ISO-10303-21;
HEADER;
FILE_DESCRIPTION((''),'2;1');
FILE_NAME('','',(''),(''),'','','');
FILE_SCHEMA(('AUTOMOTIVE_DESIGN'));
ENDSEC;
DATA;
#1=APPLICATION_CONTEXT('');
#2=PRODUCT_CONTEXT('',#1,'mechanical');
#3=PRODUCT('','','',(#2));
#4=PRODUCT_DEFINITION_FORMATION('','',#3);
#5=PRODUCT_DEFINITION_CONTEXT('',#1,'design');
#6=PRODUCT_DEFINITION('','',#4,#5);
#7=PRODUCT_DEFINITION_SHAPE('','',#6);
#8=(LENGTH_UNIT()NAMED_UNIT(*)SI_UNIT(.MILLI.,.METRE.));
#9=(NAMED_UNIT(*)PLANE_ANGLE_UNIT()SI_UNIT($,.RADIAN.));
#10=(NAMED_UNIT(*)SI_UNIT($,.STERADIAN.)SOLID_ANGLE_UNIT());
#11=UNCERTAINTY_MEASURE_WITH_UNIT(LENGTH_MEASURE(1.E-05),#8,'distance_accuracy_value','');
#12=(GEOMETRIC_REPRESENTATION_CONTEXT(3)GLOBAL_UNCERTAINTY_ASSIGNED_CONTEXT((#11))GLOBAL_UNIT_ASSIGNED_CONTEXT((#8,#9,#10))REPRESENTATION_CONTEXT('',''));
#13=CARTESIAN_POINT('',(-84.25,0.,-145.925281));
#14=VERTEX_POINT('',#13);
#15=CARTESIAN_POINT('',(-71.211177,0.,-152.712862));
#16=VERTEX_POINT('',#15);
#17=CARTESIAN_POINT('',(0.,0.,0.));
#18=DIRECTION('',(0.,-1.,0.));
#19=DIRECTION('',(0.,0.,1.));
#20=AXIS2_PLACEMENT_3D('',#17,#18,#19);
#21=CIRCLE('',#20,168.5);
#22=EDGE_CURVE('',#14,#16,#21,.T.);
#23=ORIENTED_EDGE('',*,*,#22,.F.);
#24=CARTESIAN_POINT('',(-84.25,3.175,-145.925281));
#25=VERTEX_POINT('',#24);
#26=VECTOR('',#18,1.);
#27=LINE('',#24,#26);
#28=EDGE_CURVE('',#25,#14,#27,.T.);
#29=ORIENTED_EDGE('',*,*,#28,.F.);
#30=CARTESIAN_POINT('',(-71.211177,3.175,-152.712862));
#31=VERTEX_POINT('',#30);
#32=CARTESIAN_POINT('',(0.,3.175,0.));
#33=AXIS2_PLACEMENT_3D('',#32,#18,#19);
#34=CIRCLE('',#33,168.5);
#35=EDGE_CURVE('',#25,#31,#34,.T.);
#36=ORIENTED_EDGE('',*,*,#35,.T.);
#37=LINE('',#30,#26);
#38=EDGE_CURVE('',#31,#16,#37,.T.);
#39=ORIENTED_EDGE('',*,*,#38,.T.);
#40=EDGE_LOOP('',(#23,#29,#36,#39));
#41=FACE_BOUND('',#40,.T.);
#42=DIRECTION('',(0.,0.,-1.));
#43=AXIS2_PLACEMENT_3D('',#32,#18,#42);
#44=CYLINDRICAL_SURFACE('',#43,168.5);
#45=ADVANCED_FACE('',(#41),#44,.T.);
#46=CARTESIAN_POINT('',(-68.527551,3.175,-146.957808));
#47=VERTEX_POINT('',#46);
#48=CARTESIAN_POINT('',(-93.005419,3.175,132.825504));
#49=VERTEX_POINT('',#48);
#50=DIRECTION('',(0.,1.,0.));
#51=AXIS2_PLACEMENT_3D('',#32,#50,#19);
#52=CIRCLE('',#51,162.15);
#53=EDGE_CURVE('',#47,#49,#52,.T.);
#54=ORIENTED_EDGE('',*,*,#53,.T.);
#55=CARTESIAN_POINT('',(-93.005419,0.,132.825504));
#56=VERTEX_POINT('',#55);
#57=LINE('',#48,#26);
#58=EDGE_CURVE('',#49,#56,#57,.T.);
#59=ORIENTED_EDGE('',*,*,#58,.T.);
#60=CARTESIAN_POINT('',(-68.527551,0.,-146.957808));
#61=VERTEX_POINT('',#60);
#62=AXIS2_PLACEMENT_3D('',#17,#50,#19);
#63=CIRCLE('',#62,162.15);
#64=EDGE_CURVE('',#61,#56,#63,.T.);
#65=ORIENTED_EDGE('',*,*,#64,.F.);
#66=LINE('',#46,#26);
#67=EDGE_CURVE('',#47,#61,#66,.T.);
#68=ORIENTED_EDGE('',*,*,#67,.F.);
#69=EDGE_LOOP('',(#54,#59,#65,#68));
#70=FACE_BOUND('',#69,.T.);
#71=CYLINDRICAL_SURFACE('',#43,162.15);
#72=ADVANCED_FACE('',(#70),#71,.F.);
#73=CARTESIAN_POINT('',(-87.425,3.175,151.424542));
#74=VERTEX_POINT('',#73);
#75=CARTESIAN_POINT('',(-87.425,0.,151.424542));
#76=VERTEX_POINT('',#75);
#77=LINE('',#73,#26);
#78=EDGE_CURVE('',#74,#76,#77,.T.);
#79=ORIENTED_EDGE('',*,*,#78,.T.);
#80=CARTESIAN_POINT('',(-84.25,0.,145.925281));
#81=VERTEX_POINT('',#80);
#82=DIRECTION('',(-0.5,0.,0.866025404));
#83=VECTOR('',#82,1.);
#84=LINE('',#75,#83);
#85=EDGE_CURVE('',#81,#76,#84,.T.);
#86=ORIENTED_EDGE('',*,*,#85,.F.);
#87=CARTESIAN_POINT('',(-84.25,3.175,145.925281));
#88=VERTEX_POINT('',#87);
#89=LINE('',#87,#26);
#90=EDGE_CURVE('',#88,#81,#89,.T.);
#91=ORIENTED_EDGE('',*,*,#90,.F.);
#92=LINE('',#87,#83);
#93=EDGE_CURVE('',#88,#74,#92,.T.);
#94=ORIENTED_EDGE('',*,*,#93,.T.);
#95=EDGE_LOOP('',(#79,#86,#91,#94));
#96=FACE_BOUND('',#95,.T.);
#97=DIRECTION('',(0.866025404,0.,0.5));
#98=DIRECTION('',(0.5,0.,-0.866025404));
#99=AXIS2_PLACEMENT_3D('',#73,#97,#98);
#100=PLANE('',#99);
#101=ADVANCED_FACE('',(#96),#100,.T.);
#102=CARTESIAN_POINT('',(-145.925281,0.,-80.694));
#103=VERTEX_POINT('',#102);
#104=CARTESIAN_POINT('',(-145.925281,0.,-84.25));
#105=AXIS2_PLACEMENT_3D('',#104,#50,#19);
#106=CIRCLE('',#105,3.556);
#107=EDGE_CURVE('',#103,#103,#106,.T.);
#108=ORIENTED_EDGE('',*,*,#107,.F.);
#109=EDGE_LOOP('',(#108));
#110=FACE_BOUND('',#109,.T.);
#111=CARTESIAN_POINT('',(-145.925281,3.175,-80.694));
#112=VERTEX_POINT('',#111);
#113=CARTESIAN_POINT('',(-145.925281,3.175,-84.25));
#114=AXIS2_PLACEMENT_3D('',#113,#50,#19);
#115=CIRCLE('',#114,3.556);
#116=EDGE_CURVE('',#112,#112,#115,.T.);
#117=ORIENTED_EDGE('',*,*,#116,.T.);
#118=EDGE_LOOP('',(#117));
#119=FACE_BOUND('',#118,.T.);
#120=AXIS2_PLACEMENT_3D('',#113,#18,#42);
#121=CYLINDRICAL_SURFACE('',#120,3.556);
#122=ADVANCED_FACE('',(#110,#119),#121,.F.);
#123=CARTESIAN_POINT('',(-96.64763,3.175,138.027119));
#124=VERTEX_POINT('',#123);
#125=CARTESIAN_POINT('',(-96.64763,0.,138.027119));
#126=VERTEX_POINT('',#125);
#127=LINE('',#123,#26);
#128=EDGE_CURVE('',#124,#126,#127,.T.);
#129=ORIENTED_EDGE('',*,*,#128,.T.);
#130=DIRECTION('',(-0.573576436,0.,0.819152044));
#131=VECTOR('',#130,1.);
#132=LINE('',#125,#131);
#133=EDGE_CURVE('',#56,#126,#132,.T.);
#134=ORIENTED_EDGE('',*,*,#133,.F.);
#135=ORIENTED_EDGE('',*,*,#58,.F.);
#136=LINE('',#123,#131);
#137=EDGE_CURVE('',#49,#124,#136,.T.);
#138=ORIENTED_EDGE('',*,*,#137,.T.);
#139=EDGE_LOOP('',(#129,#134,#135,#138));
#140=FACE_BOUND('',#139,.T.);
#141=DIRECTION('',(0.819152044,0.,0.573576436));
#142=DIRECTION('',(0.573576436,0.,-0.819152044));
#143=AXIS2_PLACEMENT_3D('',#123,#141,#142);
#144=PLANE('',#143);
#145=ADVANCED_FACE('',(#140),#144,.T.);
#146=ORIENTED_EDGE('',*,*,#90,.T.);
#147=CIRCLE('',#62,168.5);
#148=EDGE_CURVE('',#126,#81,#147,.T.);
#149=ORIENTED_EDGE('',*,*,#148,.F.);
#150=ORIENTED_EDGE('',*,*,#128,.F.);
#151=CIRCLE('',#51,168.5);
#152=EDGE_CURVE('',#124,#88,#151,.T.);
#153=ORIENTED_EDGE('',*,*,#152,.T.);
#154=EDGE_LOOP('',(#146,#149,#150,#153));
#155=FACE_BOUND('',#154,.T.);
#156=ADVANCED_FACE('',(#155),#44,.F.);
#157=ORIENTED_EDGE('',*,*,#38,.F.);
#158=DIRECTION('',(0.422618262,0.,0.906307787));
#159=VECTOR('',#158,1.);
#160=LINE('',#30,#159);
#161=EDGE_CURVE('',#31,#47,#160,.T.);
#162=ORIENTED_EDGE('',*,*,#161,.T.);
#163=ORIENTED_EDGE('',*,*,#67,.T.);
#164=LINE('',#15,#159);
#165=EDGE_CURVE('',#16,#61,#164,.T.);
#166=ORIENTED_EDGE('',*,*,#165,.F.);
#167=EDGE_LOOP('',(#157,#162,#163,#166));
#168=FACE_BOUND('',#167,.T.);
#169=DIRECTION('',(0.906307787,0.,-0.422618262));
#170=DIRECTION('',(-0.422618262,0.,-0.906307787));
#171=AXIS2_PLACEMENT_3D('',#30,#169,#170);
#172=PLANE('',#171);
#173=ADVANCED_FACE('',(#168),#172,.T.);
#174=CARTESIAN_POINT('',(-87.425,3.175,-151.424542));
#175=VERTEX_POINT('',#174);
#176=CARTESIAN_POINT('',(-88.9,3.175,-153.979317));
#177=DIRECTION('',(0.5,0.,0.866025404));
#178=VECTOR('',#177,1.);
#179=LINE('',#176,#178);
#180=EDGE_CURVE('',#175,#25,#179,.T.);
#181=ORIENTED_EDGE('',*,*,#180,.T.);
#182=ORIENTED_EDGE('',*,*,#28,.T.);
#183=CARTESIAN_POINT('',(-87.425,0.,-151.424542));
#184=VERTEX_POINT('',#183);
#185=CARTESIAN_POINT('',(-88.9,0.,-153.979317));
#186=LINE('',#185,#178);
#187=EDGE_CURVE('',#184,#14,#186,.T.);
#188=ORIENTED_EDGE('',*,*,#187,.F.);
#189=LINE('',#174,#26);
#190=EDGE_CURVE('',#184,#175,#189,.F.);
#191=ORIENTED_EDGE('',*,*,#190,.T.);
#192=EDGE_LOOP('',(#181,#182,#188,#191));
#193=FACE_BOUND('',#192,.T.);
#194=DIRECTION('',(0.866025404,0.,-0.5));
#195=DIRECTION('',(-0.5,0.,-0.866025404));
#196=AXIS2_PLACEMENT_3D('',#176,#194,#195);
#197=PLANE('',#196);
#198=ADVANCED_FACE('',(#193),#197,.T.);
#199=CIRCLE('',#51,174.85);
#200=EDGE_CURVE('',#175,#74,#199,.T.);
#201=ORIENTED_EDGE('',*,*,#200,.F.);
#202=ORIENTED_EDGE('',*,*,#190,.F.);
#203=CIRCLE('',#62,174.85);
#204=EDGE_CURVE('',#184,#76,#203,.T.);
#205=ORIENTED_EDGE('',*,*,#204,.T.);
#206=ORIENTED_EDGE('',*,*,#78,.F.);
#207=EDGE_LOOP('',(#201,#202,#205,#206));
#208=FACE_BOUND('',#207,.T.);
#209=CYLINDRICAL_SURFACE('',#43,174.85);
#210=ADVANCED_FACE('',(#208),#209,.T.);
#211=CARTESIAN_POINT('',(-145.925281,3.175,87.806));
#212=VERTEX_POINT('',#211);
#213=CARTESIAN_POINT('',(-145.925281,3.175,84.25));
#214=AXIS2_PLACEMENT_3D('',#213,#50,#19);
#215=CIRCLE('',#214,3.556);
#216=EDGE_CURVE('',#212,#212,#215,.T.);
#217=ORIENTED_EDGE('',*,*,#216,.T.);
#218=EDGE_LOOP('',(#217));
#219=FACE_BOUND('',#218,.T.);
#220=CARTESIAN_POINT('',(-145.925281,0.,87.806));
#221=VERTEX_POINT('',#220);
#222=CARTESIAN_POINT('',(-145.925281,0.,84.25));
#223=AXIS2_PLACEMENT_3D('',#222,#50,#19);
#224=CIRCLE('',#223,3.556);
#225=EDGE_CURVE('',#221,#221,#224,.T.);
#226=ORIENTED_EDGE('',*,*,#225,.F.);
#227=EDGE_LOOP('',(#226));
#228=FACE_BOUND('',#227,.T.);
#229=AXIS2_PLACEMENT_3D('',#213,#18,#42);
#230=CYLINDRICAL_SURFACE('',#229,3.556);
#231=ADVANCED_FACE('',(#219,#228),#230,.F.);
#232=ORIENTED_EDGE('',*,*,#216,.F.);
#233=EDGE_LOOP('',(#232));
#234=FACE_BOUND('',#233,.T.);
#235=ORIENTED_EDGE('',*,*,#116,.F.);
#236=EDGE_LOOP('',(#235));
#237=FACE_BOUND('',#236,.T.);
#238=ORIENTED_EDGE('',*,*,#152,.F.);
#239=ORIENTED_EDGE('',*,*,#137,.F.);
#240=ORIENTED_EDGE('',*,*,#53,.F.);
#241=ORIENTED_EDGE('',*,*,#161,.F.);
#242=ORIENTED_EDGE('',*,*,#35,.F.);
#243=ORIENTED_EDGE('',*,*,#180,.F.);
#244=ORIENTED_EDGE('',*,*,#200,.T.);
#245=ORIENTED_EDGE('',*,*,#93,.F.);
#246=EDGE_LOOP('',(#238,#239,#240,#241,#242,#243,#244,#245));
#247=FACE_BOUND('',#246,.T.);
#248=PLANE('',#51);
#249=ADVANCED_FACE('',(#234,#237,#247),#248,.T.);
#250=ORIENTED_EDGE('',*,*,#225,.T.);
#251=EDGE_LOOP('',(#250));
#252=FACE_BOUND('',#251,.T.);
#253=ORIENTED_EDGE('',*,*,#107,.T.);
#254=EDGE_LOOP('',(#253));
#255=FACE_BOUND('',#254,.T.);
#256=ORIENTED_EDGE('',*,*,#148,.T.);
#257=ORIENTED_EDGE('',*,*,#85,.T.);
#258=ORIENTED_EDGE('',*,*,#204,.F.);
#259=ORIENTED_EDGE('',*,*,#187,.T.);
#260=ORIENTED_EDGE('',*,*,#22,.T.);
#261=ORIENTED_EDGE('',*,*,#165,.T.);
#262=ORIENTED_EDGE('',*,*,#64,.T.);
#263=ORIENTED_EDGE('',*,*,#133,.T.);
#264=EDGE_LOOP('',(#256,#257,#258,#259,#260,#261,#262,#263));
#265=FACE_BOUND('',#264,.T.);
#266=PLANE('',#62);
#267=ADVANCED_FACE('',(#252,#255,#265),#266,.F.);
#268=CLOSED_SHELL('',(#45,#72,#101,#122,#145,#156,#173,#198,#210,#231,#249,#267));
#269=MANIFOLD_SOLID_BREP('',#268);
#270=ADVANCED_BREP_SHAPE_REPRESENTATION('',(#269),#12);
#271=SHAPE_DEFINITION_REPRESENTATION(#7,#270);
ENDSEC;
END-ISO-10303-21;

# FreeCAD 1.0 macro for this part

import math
import FreeCAD as App
import Part
import Sketcher
from FreeCAD import Vector
Q = App.Units.Quantity

doc = App.newDocument("Part")
body = doc.addObject("PartDesign::Body", "Body")

sketch1 = doc.addObject("Sketcher::SketchObject", "Sketch")
body.addObject(sketch1)
sketch1.AttachmentSupport = (doc.XZ_Plane, [""])
sketch1.MapMode = "FlatFace"
sketch1.addGeometry(Part.Circle(Vector(0, 0, 0), Vector(0, 0, 1), 174.8), False)
sketch1.addGeometry(Part.Circle(Vector(-145.9, 84.2, 0), Vector(0, 0, 1), 3.6), False)
sketch1.addGeometry(Part.Circle(Vector(0, 168.5, 0), Vector(0, 0, 1), 3.6), False)
sketch1.addGeometry(Part.Circle(Vector(0, 0, 0), Vector(0, 0, 1), 162.2), False)
sketch1.addGeometry(Part.Circle(Vector(145.9, 84.2, 0), Vector(0, 0, 1), 3.6), False)
sketch1.addGeometry(Part.Circle(Vector(-145.9, -84.2, 0), Vector(0, 0, 1), 3.6), False)
sketch1.addGeometry(Part.Circle(Vector(145.9, -84.2, 0), Vector(0, 0, 1), 3.6), False)
sketch1.addGeometry(Part.Circle(Vector(0, -168.5, 0), Vector(0, 0, 1), 3.6), False)
sketch1.addConstraint(Sketcher.Constraint("Coincident", 0, 3, -1, 1))
sketch1.addConstraint(Sketcher.Constraint("Coincident", 3, 3, -1, 1))
sketch1.addConstraint(Sketcher.Constraint("Equal", 1, 2))
sketch1.addConstraint(Sketcher.Constraint("Equal", 2, 4))
sketch1.addConstraint(Sketcher.Constraint("Equal", 4, 5))
sketch1.addConstraint(Sketcher.Constraint("Equal", 5, 6))
sketch1.addConstraint(Sketcher.Constraint("Equal", 6, 7))
sketch1.addConstraint(Sketcher.Constraint("Symmetric", 4, 3, 5, 3, -1, 1))
sketch1.addConstraint(Sketcher.Constraint("Symmetric", 1, 3, 6, 3, -1, 1))
sketch1.addConstraint(Sketcher.Constraint("Symmetric", 2, 3, 7, 3, -1, 1))
sketch1.addConstraint(Sketcher.Constraint("Symmetric", 1, 3, 4, 3, -2))
sketch1.addConstraint(Sketcher.Constraint("PointOnObject", 2, 3, -2))
sketch1.addConstraint(Sketcher.Constraint("Diameter", 0, Q("349.7 mm")))
sketch1.addConstraint(Sketcher.Constraint("Diameter", 3, Q("324.3 mm")))
sketch1.addConstraint(Sketcher.Constraint("Diameter", 1, Q("7.112 mm")))
sketch1.addConstraint(Sketcher.Constraint("DistanceY", -1, 1, 2, 3, Q("168.5 mm")))
sketch1.addConstraint(Sketcher.Constraint("DistanceY", 5, 3, 1, 3, Q("168.5 mm")))
sketch1.addConstraint(Sketcher.Constraint("DistanceX", 1, 3, -1, 1, Q("145.925281 mm")))
pad1 = doc.addObject("PartDesign::Pad", "Pad")
body.addObject(pad1)
pad1.Profile = sketch1
pad1.Length = 3.175
pad1.Reversed = True

sketch2 = doc.addObject("Sketcher::SketchObject", "Sketch001")
body.addObject(sketch2)
sketch2.AttachmentSupport = (doc.XZ_Plane, [""])
sketch2.MapMode = "FlatFace"
sketch2.addGeometry(Part.LineSegment(Vector(-88.9, -154, 0), Vector(-84.2, -145.9, 0)), False)
sketch2.addGeometry(Part.ArcOfCircle(Part.Circle(Vector(0, 0, 0), Vector(0, 0, 1), 168.5), math.radians(-120), math.radians(-115)), False)
sketch2.addGeometry(Part.LineSegment(Vector(-71.2, -152.7, 0), Vector(-68.5, -147, 0)), False)
sketch2.addGeometry(Part.ArcOfCircle(Part.Circle(Vector(0, 0, 0), Vector(0, 0, 1), 162.1), math.radians(-120), math.radians(-115)), False)
sketch2.addGeometry(Part.LineSegment(Vector(-81.1, -140.4, 0), Vector(0, 0, 0)), False)
sketch2.addGeometry(Part.LineSegment(Vector(0, 0, 0), Vector(-81.1, 140.4, 0)), False)
sketch2.addGeometry(Part.ArcOfCircle(Part.Circle(Vector(0, 0, 0), Vector(0, 0, 1), 162.1), math.radians(120), math.radians(125)), False)
sketch2.addGeometry(Part.LineSegment(Vector(-93, 132.8, 0), Vector(-96.6, 138, 0)), False)
sketch2.addGeometry(Part.ArcOfCircle(Part.Circle(Vector(0, 0, 0), Vector(0, 0, 1), 168.5), math.radians(120), math.radians(125)), False)
sketch2.addGeometry(Part.LineSegment(Vector(-84.2, 145.9, 0), Vector(-87.4, 151.4, 0)), False)
sketch2.addGeometry(Part.LineSegment(Vector(-87.4, 151.4, 0), Vector(-88.9, 154, 0)), False)
sketch2.addGeometry(Part.ArcOfCircle(Part.Circle(Vector(0, 0, 0), Vector(0, 0, 1), 177.8), math.radians(-120), math.radians(120)), False)
sketch2.addConstraint(Sketcher.Constraint("Coincident", 0, 2, 1, 1))
sketch2.addConstraint(Sketcher.Constraint("Coincident", 1, 2, 2, 1))
sketch2.addConstraint(Sketcher.Constraint("Coincident", 2, 2, 3, 2))
sketch2.addConstraint(Sketcher.Constraint("Coincident", 3, 1, 4, 1))
sketch2.addConstraint(Sketcher.Constraint("Coincident", 4, 2, 5, 1))
sketch2.addConstraint(Sketcher.Constraint("Coincident", 5, 2, 6, 1))
sketch2.addConstraint(Sketcher.Constraint("Coincident", 6, 2, 7, 1))
sketch2.addConstraint(Sketcher.Constraint("Coincident", 7, 2, 8, 2))
sketch2.addConstraint(Sketcher.Constraint("Coincident", 8, 1, 9, 1))
sketch2.addConstraint(Sketcher.Constraint("Coincident", 9, 2, 10, 1))
sketch2.addConstraint(Sketcher.Constraint("Coincident", 10, 2, 11, 2))
sketch2.addConstraint(Sketcher.Constraint("Coincident", 11, 1, 0, 1))
sketch2.addConstraint(Sketcher.Constraint("Coincident", 1, 3, -1, 1))
sketch2.addConstraint(Sketcher.Constraint("Coincident", 3, 3, -1, 1))
sketch2.addConstraint(Sketcher.Constraint("Coincident", 6, 3, -1, 1))
sketch2.addConstraint(Sketcher.Constraint("Coincident", 8, 3, -1, 1))
sketch2.addConstraint(Sketcher.Constraint("Coincident", 11, 3, -1, 1))
sketch2.addConstraint(Sketcher.Constraint("Coincident", 4, 2, -1, 1))
sketch2.addConstraint(Sketcher.Constraint("Equal", 3, 6))
sketch2.addConstraint(Sketcher.Constraint("Equal", 1, 8))
sketch2.addConstraint(Sketcher.Constraint("Parallel", 0, 4))
sketch2.addConstraint(Sketcher.Constraint("Parallel", 5, 9))
sketch2.addConstraint(Sketcher.Constraint("Parallel", 9, 10))
sketch2.addConstraint(Sketcher.Constraint("Vertical", 3, 1, 5, 2))
sketch2.addConstraint(Sketcher.Constraint("Vertical", 0, 2, 8, 1))
sketch2.addConstraint(Sketcher.Constraint("Equal", 7, 9))
sketch2.addConstraint(Sketcher.Constraint("Radius", 1, Q("168.5 mm")))
sketch2.addConstraint(Sketcher.Constraint("Radius", 11, Q("177.8 mm")))
sketch2.addConstraint(Sketcher.Constraint("Angle", 0, Q("60 deg")))
sketch2.addConstraint(Sketcher.Constraint("Angle", 2, Q("65 deg")))
sketch2.addConstraint(Sketcher.Constraint("Angle", 7, Q("125 deg")))
sketch2.addConstraint(Sketcher.Constraint("Radius", 3, Q("162.15 mm")))
sketch2.addConstraint(Sketcher.Constraint("DistanceX", 10, 2, -1, 1, Q("88.9 mm")))
sketch2.addConstraint(Sketcher.Constraint("DistanceY", 7, 2, 5, 2, Q("2.3989 mm")))
sketch2.addConstraint(Sketcher.Constraint("DistanceX", 2, 2, -1, 1, Q("68.527551 mm")))
pocket1 = doc.addObject("PartDesign::Pocket", "Pocket")
body.addObject(pocket1)
pocket1.Profile = sketch2
pocket1.Type = "ThroughAll"

doc.recompute()
